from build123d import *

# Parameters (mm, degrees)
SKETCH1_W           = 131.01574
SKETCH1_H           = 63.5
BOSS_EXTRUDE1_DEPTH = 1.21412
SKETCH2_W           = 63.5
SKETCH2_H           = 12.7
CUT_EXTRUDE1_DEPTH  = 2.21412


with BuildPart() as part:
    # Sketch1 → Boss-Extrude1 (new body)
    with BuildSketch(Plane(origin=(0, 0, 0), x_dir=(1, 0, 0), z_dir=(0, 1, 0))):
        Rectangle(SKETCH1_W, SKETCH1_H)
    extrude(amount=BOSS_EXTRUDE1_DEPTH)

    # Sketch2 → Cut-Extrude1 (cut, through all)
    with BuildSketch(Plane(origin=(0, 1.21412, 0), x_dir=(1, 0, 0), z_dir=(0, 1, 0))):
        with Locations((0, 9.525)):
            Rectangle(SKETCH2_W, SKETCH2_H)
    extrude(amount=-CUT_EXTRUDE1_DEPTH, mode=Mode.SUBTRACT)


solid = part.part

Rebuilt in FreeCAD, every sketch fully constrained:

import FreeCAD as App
import Part
import Sketcher
Q = App.Units.Quantity

doc = App.newDocument("Part")
body = doc.addObject("PartDesign::Body", "Body")

sketch1 = body.newObject("Sketcher::SketchObject", "Sketch")
sketch1.AttachmentSupport = (doc.getObject("XZ_Plane"), [""])
sketch1.MapMode = "FlatFace"
sketch1.addGeometry([
    Part.LineSegment(App.Vector(-65.50787, -31.75, 0), App.Vector(-65.50787, 31.75, 0)),
    Part.LineSegment(App.Vector(-65.50787, 31.75, 0), App.Vector(65.50787, 31.75, 0)),
    Part.LineSegment(App.Vector(65.50787, 31.75, 0), App.Vector(65.50787, -31.75, 0)),
    Part.LineSegment(App.Vector(65.50787, -31.75, 0), App.Vector(-65.50787, -31.75, 0)),
], False)
sketch1.addConstraint([
    Sketcher.Constraint("Coincident", 0, 2, 1, 1),
    Sketcher.Constraint("Coincident", 1, 2, 2, 1),
    Sketcher.Constraint("Coincident", 2, 2, 3, 1),
    Sketcher.Constraint("Coincident", 3, 2, 0, 1),
    Sketcher.Constraint("Vertical", 0),
    Sketcher.Constraint("Horizontal", 1),
    Sketcher.Constraint("Vertical", 2),
    Sketcher.Constraint("Horizontal", 3),
    Sketcher.Constraint("Symmetric", 0, 2, 2, 2, -1, 1),
    Sketcher.Constraint("DistanceY", 0, 1, 0, 2, Q("2.5 in")),
    Sketcher.Constraint("DistanceX", 1, 1, 1, 2, Q("5.1581 in")),
])
pad1 = body.newObject("PartDesign::Pad", "Pad")
pad1.Profile = sketch1
pad1.Length = Q("0.0478 in")
pad1.Reversed = True

sketch2 = body.newObject("Sketcher::SketchObject", "Sketch001")
sketch2.AttachmentSupport = (doc.getObject("XZ_Plane"), [""])
sketch2.MapMode = "FlatFace"
sketch2.AttachmentOffset = App.Placement(App.Vector(0, 0, -0.0478 * 25.4), App.Rotation())
sketch2.addGeometry([
    Part.LineSegment(App.Vector(-31.75, -15.875, 0), App.Vector(-31.75, -3.175, 0)),
    Part.LineSegment(App.Vector(-31.75, -3.175, 0), App.Vector(31.75, -3.175, 0)),
    Part.LineSegment(App.Vector(31.75, -3.175, 0), App.Vector(31.75, -15.875, 0)),
    Part.LineSegment(App.Vector(31.75, -15.875, 0), App.Vector(-31.75, -15.875, 0)),
], False)
sketch2.addConstraint([
    Sketcher.Constraint("Coincident", 0, 2, 1, 1),
    Sketcher.Constraint("Coincident", 1, 2, 2, 1),
    Sketcher.Constraint("Coincident", 2, 2, 3, 1),
    Sketcher.Constraint("Coincident", 3, 2, 0, 1),
    Sketcher.Constraint("Vertical", 0),
    Sketcher.Constraint("Horizontal", 1),
    Sketcher.Constraint("Vertical", 2),
    Sketcher.Constraint("Horizontal", 3),
    Sketcher.Constraint("DistanceX", 1, 1, 1, 2, Q("2.5 in")),
    Sketcher.Constraint("DistanceY", 0, 1, 0, 2, Q("0.5 in")),
    Sketcher.Constraint("DistanceX", 0, 2, -1, 1, Q("1.25 in")),
    Sketcher.Constraint("DistanceY", 0, 2, -1, 1, Q("0.125 in")),
])
pocket1 = body.newObject("PartDesign::Pocket", "Pocket")
pocket1.Profile = sketch2
pocket1.Type = "ThroughAll"
pocket1.Reversed = True

doc.recompute()
